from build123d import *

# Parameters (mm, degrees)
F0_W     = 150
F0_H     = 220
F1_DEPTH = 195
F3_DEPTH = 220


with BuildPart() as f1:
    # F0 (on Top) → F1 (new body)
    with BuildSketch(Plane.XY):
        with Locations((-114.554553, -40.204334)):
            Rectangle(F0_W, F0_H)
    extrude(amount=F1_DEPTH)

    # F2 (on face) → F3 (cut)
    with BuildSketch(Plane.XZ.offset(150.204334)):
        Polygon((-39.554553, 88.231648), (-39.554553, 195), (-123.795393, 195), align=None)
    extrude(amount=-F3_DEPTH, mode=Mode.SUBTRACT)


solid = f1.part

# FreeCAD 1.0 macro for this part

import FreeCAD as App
import Part
import Sketcher
from FreeCAD import Vector


def add_polygon(sketch, points):
    """Adds a closed chain of lines whose ends are joined by coincident constraints."""
    first, n = sketch.GeometryCount, len(points)
    for a, b in zip(points, points[1:] + points[:1]):
        sketch.addGeometry(Part.LineSegment(App.Vector(*a, 0), App.Vector(*b, 0)), False)
    for i in range(n):
        sketch.addConstraint(Sketcher.Constraint("Coincident", first + i, 2, first + (i + 1) % n, 1))

doc = App.newDocument("Part")
params = doc.addObject("Spreadsheet::Sheet", "Params")
for row, (alias, value) in enumerate([
    ("sketch1_width", "150 mm"),
    ("sketch1_height", "220 mm"),
    ("pad1_length", "195 mm"),
    ("sketch2_length", "136 mm"),
    ("pocket1_length", "220 mm"),
], start=1):
    params.set(f"A{row}", alias)
    params.set(f"B{row}", "=" + value)
    params.setAlias(f"B{row}", alias)

body = doc.addObject("PartDesign::Body", "Body")

sketch1 = body.newObject("Sketcher::SketchObject", "Sketch")
sketch1.AttachmentSupport = (doc.getObject("XY_Plane"), [""])
sketch1.MapMode = "FlatFace"
add_polygon(sketch1, [(-190, 70), (-190, -150), (-40, -150), (-40, 70)])
sketch1.addConstraint([
    Sketcher.Constraint("Vertical", 0),
    Sketcher.Constraint("Horizontal", 1),
    Sketcher.Constraint("Vertical", 2),
    Sketcher.Constraint("Horizontal", 3),
    Sketcher.Constraint("DistanceX", 1, 1, 1, 2, 150.0),
    Sketcher.Constraint("DistanceY", 0, 2, 0, 1, 220.0),
    Sketcher.Constraint("DistanceX", 0, 2, -1, 1, 189.554553),
    Sketcher.Constraint("DistanceY", 0, 2, -1, 1, 150.204334),
])
sketch1.setExpression("Constraints[8]", "Params.sketch1_width")
sketch1.setExpression("Constraints[9]", "Params.sketch1_height")
pad1 = body.newObject("PartDesign::Pad", "Pad")
pad1.Profile = sketch1
pad1.setExpression("Length", "Params.pad1_length")

sketch2 = body.newObject("Sketcher::SketchObject", "Sketch001")
sketch2.AttachmentSupport = (doc.getObject("XZ_Plane"), [""])
sketch2.MapMode = "FlatFace"
sketch2.AttachmentOffset = App.Placement(Vector(0, 0, 150.204334), App.Rotation())
add_polygon(sketch2, [(-40, 88), (-40, 195), (-124, 195)])
sketch2.addConstraint([
    Sketcher.Constraint("Vertical", 0),
    Sketcher.Constraint("Horizontal", 1),
    Sketcher.Constraint("Distance", 2, 136.0),
    Sketcher.Constraint("DistanceY", -1, 1, 0, 2, 195.0),
    Sketcher.Constraint("DistanceX", 1, 2, 1, 1, 84.24084),
    Sketcher.Constraint("DistanceX", 0, 2, -1, 1, 39.554553),
])
sketch2.setExpression("Constraints[5]", "Params.sketch2_length")
pocket1 = body.newObject("PartDesign::Pocket", "Pocket")
pocket1.Profile = sketch2
pocket1.setExpression("Length", "Params.pocket1_length")

doc.recompute()
